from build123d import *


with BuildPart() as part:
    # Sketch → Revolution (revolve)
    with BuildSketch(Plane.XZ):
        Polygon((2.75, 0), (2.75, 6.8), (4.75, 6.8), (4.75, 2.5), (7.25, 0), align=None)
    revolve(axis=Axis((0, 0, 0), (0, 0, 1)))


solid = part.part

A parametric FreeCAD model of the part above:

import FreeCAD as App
import Part
import Sketcher
from FreeCAD import Vector
Q = App.Units.Quantity

doc = App.newDocument("Part")
body = doc.addObject("PartDesign::Body", "Body")

sketch1 = body.newObject("Sketcher::SketchObject", "Sketch")
sketch1.AttachmentSupport = (doc.getObject("XZ_Plane"), [""])
sketch1.MapMode = "FlatFace"
sketch1.addGeometry([
    Part.LineSegment(Vector(2.8, 6.8, 0), Vector(2.8, 0, 0)),
    Part.LineSegment(Vector(2.8, 0, 0), Vector(7.2, 0, 0)),
    Part.LineSegment(Vector(7.2, 0, 0), Vector(4.8, 2.5, 0)),
    Part.LineSegment(Vector(4.8, 2.5, 0), Vector(4.8, 6.8, 0)),
    Part.LineSegment(Vector(4.8, 6.8, 0), Vector(2.8, 6.8, 0)),
], False)
sketch1.addConstraint([
    Sketcher.Constraint("Coincident", 0, 2, 1, 1),
    Sketcher.Constraint("Coincident", 1, 2, 2, 1),
    Sketcher.Constraint("Coincident", 2, 2, 3, 1),
    Sketcher.Constraint("Coincident", 3, 2, 4, 1),
    Sketcher.Constraint("Coincident", 4, 2, 0, 1),
    Sketcher.Constraint("Vertical", 0),
    Sketcher.Constraint("Horizontal", 1),
    Sketcher.Constraint("Vertical", 3),
    Sketcher.Constraint("Horizontal", 4),
    Sketcher.Constraint("PointOnObject", 0, 2, -1),
    Sketcher.Constraint("DistanceX", 4, 2, 4, 1, Q("2 mm")),
    Sketcher.Constraint("Angle", 2, Q("135 deg")),
    Sketcher.Constraint("DistanceX", 1, 1, 1, 2, Q("4.5 mm")),
    Sketcher.Constraint("DistanceY", 0, 2, 0, 1, Q("6.8 mm")),
    Sketcher.Constraint("DistanceX", -1, 1, 0, 2, Q("2.75 mm")),
])
revolution = body.newObject("PartDesign::Revolution", "Revolution")
revolution.Profile = sketch1
revolution.ReferenceAxis = (sketch1, ["V_Axis"])
revolution.Angle = 360

doc.recompute()
